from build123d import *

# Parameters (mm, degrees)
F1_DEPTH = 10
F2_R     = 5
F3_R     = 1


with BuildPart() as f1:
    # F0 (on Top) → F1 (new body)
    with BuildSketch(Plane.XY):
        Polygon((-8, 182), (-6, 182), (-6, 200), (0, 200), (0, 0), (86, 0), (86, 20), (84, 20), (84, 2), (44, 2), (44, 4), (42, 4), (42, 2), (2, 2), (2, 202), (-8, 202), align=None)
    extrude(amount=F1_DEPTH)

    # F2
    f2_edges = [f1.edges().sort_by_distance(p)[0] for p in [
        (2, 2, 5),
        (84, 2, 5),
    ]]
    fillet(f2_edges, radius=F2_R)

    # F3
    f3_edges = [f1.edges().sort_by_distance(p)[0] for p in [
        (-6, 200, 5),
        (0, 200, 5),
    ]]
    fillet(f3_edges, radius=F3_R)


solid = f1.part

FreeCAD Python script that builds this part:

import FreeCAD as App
import Part
import Sketcher
from FreeCAD import Vector
Q = App.Units.Quantity


def edges_at(feature, points):
    """Names of the edges that pass closest to the given points."""
    edges = feature.Shape.Edges
    near = lambda p: min(range(len(edges)), key=lambda i: edges[i].distToShape(Part.Vertex(*p))[0])
    return sorted({f"Edge{near(p) + 1}" for p in points})


def add_polygon(sketch, points):
    """Adds a closed chain of lines whose ends are joined by coincident constraints."""
    first, n = sketch.GeometryCount, len(points)
    for a, b in zip(points, points[1:] + points[:1]):
        sketch.addGeometry(Part.LineSegment(App.Vector(*a, 0), App.Vector(*b, 0)), False)
    for i in range(n):
        sketch.addConstraint(Sketcher.Constraint("Coincident", first + i, 2, first + (i + 1) % n, 1))

doc = App.newDocument("Part")
params = doc.addObject("Spreadsheet::Sheet", "Params")
for row, (alias, value) in enumerate([
    ("sketch1_width", "2 mm"),
    ("sketch1_width2", "6 mm"),
    ("sketch1_width3", "86 mm"),
    ("sketch1_width4", "40 mm"),
    ("sketch1_height", "18 mm"),
    ("pad1_length", "10 mm"),
    ("fillet_radius", "5 mm"),
    ("fillet2_radius", "1 mm"),
], start=1):
    params.set(f"A{row}", alias)
    params.set(f"B{row}", "=" + value)
    params.setAlias(f"B{row}", alias)

body = doc.addObject("PartDesign::Body", "Body")

# Sketch on XY plane
sketch1 = body.newObject("Sketcher::SketchObject", "Sketch")
sketch1.AttachmentSupport = (doc.getObject("XY_Plane"), [""])
sketch1.MapMode = "FlatFace"
add_polygon(sketch1, [(-8, 182), (-6, 182), (-6, 200), (0, 200), (0, 0), (86, 0), (86, 20), (84, 20), (84, 2), (44, 2), (44, 4), (42, 4), (42, 2), (2, 2), (2, 202), (-8, 202)])  # lines 0-15
sketch1.addConstraint([
    Sketcher.Constraint("Horizontal", 0),
    Sketcher.Constraint("Vertical", 1),
    Sketcher.Constraint("Horizontal", 2),
    Sketcher.Constraint("Vertical", 3),
    Sketcher.Constraint("Horizontal", 4),
    Sketcher.Constraint("Vertical", 5),
    Sketcher.Constraint("Horizontal", 6),
    Sketcher.Constraint("Vertical", 7),
    Sketcher.Constraint("Horizontal", 8),
    Sketcher.Constraint("Vertical", 9),
    Sketcher.Constraint("Horizontal", 10),
    Sketcher.Constraint("Vertical", 11),
    Sketcher.Constraint("Horizontal", 12),
    Sketcher.Constraint("Vertical", 13),
    Sketcher.Constraint("Horizontal", 14),
    Sketcher.Constraint("Vertical", 15),
    Sketcher.Constraint("Coincident", 3, 2, -1, 1),
    Sketcher.Constraint("Horizontal", 8, 2, 11, 2),
    Sketcher.Constraint("Equal", 0, 6),
    Sketcher.Constraint("Equal", 6, 10),
    Sketcher.Constraint("Equal", 8, 12),
    Sketcher.Constraint("Equal", 1, 7),
    Sketcher.Constraint("Equal", 10, 9),
    Sketcher.Constraint("Equal", 3, 13),
    Sketcher.Constraint("DistanceX", 0, 1, 0, 2, Q("2 mm")),
    Sketcher.Constraint("DistanceX", 2, 1, 2, 2, Q("6 mm")),
    Sketcher.Constraint("DistanceX", 4, 1, 4, 2, Q("86 mm")),
    Sketcher.Constraint("DistanceX", 8, 2, 8, 1, Q("40 mm")),
    Sketcher.Constraint("DistanceY", 1, 1, 1, 2, Q("18 mm")),
    Sketcher.Constraint("DistanceY", 3, 2, 3, 1, Q("200 mm")),
    Sketcher.Constraint("DistanceY", 5, 1, 5, 2, Q("20 mm")),
])
sketch1.setExpression("Constraints[40]", "Params.sketch1_width")
sketch1.setExpression("Constraints[41]", "Params.sketch1_width2")
sketch1.setExpression("Constraints[42]", "Params.sketch1_width3")
sketch1.setExpression("Constraints[43]", "Params.sketch1_width4")
sketch1.setExpression("Constraints[44]", "Params.sketch1_height")
pad1 = body.newObject("PartDesign::Pad", "Pad")
pad1.Profile = sketch1
pad1.setExpression("Length", "Params.pad1_length")
doc.recompute()

fillet = body.newObject("PartDesign::Fillet", "Fillet")
fillet.Base = (pad1, edges_at(pad1, [(2, 2, 5), (84, 2, 5)]))
fillet.setExpression("Radius", "Params.fillet_radius")
doc.recompute()

fillet2 = body.newObject("PartDesign::Fillet", "Fillet001")
fillet2.Base = (fillet, edges_at(fillet, [(-6, 200, 5), (0, 200, 5)]))
fillet2.setExpression("Radius", "Params.fillet2_radius")

doc.recompute()
